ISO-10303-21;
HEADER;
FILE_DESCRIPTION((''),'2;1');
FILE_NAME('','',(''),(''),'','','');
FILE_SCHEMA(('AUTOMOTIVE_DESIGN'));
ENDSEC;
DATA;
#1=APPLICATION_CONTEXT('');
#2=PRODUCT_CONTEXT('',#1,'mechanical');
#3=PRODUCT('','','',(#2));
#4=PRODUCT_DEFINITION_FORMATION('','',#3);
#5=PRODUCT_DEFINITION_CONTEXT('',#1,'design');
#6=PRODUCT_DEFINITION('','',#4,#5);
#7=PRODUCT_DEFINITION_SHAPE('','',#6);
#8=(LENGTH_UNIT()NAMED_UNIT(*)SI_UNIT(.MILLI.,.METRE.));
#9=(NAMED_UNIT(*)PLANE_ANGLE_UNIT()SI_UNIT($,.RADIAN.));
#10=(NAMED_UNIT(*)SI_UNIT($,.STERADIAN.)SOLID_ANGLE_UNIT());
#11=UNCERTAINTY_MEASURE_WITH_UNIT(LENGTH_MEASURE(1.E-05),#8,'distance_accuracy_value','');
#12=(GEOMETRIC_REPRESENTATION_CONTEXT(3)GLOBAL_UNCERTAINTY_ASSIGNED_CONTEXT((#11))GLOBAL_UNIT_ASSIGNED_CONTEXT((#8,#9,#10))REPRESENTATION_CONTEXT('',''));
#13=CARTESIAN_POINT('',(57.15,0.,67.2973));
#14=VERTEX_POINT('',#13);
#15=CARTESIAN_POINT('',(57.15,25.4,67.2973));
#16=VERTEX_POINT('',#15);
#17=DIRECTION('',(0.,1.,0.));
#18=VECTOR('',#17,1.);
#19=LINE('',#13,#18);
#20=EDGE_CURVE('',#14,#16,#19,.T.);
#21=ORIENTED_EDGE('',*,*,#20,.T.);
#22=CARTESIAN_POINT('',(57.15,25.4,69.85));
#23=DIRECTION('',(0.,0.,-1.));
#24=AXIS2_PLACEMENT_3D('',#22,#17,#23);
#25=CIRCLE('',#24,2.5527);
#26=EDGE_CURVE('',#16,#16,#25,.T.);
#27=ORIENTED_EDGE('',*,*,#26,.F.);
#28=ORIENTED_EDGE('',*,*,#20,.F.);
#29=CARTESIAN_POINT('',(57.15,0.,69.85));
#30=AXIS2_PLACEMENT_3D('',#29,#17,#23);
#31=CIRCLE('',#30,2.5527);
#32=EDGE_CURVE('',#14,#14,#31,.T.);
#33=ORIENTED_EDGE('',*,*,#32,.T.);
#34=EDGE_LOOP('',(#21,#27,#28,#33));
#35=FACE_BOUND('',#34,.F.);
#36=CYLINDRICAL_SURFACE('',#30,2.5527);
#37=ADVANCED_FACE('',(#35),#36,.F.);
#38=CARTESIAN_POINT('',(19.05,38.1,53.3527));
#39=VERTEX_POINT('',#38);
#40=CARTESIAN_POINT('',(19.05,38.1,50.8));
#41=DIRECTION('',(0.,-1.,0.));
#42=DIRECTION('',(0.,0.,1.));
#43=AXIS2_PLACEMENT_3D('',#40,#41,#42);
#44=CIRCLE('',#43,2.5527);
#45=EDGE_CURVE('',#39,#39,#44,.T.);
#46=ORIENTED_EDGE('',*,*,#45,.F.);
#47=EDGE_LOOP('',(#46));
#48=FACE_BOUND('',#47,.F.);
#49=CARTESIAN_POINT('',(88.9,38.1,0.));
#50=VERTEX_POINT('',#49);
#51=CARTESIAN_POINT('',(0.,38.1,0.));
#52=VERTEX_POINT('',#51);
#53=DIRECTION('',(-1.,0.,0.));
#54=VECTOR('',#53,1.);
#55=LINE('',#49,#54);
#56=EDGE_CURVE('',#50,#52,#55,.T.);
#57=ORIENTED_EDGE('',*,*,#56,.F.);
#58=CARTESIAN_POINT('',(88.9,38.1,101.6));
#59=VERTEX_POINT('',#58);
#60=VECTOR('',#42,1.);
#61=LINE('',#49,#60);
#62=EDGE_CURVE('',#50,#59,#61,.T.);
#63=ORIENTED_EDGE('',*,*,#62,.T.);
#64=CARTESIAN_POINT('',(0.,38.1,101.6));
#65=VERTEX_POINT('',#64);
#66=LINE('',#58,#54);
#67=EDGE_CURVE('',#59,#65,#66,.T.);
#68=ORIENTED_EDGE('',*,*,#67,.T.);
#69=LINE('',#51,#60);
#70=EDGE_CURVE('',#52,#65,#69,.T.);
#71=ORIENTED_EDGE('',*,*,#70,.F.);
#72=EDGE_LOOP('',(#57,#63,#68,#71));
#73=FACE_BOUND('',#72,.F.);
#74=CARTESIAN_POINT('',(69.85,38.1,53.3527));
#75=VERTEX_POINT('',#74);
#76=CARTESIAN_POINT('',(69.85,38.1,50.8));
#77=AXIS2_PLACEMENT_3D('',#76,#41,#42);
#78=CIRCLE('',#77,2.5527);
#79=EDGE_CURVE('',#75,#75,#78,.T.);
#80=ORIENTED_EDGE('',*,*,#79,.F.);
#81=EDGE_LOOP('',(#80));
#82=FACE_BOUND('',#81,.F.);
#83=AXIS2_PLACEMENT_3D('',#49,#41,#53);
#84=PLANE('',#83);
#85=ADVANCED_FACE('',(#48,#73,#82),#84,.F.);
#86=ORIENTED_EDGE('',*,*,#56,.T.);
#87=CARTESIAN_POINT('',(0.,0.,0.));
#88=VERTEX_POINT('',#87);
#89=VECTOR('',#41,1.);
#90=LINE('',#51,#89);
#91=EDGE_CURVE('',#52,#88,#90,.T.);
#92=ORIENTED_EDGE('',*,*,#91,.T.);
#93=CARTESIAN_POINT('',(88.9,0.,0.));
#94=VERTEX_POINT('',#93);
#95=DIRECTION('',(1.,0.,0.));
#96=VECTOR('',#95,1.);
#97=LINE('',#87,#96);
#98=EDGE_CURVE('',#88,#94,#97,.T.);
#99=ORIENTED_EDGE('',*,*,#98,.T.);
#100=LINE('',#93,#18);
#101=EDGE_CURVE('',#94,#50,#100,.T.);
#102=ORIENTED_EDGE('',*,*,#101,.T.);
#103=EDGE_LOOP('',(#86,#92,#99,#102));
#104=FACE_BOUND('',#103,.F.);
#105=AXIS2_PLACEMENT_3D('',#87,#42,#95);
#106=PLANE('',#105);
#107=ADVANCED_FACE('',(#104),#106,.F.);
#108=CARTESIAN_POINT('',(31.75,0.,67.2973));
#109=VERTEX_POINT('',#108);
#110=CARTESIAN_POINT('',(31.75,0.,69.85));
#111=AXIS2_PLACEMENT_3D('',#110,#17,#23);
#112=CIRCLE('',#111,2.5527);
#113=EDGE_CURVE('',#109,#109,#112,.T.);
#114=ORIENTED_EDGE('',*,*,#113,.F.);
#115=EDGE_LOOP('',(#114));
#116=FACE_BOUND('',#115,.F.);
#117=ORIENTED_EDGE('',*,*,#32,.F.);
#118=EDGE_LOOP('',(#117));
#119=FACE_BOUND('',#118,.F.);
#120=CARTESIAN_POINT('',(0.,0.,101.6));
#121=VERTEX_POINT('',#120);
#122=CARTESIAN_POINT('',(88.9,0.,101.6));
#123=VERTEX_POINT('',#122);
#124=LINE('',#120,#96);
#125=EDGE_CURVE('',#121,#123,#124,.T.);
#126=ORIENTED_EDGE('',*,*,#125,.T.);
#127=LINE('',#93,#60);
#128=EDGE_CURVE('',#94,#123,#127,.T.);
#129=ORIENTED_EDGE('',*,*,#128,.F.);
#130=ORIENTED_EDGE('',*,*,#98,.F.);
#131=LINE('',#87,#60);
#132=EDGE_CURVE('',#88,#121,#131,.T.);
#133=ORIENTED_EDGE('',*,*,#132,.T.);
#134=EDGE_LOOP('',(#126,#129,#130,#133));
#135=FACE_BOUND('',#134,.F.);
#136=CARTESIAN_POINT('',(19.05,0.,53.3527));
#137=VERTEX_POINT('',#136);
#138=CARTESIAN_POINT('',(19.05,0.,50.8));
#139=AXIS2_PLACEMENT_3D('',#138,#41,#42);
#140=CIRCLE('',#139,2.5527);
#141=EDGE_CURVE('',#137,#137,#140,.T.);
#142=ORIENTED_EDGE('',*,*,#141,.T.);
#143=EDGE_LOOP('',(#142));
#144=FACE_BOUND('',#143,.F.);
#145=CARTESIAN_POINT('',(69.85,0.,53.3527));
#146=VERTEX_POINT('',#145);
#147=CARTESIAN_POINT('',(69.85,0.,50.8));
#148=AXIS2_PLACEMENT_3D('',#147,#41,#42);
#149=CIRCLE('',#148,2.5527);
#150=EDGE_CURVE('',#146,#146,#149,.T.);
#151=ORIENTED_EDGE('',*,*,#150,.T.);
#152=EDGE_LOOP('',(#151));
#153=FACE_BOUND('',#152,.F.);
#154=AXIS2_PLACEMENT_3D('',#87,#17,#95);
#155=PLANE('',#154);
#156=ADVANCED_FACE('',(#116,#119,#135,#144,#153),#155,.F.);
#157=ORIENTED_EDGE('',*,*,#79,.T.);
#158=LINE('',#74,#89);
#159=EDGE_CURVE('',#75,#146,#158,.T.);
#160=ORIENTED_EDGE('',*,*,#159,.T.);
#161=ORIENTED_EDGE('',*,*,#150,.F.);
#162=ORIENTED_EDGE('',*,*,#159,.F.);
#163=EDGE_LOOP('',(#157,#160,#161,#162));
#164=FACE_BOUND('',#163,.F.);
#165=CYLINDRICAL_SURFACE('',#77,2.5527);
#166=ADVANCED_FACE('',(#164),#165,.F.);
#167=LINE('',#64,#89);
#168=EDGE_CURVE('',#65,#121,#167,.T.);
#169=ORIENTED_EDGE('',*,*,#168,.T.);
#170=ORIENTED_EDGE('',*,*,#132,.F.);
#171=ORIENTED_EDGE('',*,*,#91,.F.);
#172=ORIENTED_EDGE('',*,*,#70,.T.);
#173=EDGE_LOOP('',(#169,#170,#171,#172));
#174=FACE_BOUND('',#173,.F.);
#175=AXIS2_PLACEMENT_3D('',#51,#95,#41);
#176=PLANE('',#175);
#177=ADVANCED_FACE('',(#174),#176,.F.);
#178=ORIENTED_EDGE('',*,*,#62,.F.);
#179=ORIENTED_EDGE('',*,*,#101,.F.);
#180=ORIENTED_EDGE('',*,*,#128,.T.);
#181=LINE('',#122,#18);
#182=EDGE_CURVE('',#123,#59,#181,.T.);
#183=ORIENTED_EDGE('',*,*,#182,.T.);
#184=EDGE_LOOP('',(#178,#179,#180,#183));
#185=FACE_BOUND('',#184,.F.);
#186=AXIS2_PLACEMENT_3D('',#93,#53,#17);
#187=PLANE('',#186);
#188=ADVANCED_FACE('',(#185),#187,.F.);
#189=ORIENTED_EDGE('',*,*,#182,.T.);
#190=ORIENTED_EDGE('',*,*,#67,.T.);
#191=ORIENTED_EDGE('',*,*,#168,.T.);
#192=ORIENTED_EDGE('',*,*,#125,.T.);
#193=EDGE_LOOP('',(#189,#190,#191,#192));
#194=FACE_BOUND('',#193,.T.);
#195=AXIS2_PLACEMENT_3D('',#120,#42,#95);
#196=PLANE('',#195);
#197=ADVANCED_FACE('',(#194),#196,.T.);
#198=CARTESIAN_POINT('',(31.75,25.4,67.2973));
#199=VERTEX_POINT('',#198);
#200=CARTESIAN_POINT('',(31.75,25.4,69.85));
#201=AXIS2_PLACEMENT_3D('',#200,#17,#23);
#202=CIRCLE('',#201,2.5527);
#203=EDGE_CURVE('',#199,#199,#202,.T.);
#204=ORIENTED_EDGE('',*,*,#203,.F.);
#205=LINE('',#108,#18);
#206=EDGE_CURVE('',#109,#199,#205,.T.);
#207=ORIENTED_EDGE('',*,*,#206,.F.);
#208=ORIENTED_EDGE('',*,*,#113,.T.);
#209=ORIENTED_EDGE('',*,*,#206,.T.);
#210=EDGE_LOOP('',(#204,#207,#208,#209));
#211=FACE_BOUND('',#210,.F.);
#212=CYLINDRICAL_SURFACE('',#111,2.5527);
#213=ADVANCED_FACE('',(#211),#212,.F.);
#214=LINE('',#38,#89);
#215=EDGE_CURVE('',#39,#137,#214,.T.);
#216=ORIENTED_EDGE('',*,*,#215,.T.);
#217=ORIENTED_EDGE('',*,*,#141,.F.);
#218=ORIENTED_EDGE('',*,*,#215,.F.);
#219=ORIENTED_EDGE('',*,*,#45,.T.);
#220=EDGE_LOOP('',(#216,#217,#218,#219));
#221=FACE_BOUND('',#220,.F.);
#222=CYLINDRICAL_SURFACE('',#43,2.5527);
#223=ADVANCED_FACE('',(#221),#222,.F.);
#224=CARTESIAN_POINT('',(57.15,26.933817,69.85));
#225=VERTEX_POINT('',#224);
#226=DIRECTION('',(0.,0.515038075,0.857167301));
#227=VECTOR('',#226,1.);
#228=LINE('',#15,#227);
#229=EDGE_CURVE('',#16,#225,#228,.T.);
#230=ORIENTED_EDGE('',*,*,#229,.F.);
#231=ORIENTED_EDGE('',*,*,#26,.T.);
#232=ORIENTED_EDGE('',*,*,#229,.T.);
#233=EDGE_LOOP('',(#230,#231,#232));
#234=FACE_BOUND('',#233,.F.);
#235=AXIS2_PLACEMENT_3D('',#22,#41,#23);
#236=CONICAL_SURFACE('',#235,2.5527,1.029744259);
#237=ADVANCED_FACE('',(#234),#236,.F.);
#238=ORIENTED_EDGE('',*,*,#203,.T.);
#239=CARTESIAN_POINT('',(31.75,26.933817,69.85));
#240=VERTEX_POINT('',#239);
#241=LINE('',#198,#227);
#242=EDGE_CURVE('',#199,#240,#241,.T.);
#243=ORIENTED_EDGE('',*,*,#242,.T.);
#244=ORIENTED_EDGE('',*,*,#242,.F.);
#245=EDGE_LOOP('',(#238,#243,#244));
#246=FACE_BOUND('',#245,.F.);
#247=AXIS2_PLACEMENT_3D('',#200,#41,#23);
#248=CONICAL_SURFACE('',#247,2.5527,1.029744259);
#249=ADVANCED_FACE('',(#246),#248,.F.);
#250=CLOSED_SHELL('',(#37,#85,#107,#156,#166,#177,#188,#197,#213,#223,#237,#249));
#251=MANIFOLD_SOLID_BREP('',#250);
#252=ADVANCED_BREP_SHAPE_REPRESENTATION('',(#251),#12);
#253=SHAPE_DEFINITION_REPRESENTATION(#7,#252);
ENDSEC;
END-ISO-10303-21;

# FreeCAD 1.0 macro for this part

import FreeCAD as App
import Part
import Sketcher
Q = App.Units.Quantity

doc = App.newDocument("Part")
body = doc.addObject("PartDesign::Body", "Body")

# Sketch on XY plane
sketch1 = body.newObject("Sketcher::SketchObject", "Sketch")
sketch1.AttachmentSupport = (doc.getObject("XY_Plane"), [""])
sketch1.MapMode = "FlatFace"
sketch1.addGeometry(Part.LineSegment(App.Vector(0, 38, 0), App.Vector(0, 0, 0)), False)
sketch1.addGeometry(Part.LineSegment(App.Vector(0, 0, 0), App.Vector(89, 0, 0)), False)
sketch1.addGeometry(Part.LineSegment(App.Vector(89, 0, 0), App.Vector(89, 38, 0)), False)
sketch1.addGeometry(Part.LineSegment(App.Vector(89, 38, 0), App.Vector(0, 38, 0)), False)
sketch1.addConstraint(Sketcher.Constraint("Coincident", 0, 2, 1, 1))
sketch1.addConstraint(Sketcher.Constraint("Coincident", 1, 2, 2, 1))
sketch1.addConstraint(Sketcher.Constraint("Coincident", 2, 2, 3, 1))
sketch1.addConstraint(Sketcher.Constraint("Coincident", 3, 2, 0, 1))
sketch1.addConstraint(Sketcher.Constraint("Vertical", 0))
sketch1.addConstraint(Sketcher.Constraint("Horizontal", 1))
sketch1.addConstraint(Sketcher.Constraint("Vertical", 2))
sketch1.addConstraint(Sketcher.Constraint("Horizontal", 3))
sketch1.addConstraint(Sketcher.Constraint("Coincident", 0, 2, -1, 1))
sketch1.addConstraint(Sketcher.Constraint("DistanceX", 1, 1, 1, 2, Q("3.5 in")))
sketch1.addConstraint(Sketcher.Constraint("DistanceY", 0, 2, 0, 1, Q("1.5 in")))
pad1 = body.newObject("PartDesign::Pad", "Pad")
pad1.Profile = sketch1
pad1.Length = Q("4 in")

# Sketch on XZ plane
sketch2 = body.newObject("Sketcher::SketchObject", "Sketch001")
sketch2.AttachmentSupport = (doc.getObject("XZ_Plane"), [""])
sketch2.MapMode = "FlatFace"
sketch2.AttachmentOffset = App.Placement(App.Vector(0, 0, -1.5 * 25.4), App.Rotation())
sketch2.addGeometry(Part.Circle(App.Vector(19.1, 50.8, 0), App.Vector(0, 0, 1), 2.6), False)
sketch2.addGeometry(Part.Circle(App.Vector(69.8, 50.8, 0), App.Vector(0, 0, 1), 2.6), False)
sketch2.addConstraint(Sketcher.Constraint("Equal", 0, 1))
sketch2.addConstraint(Sketcher.Constraint("Horizontal", 0, 3, 1, 3))
sketch2.addConstraint(Sketcher.Constraint("Diameter", 0, Q("0.201 in")))
sketch2.addConstraint(Sketcher.Constraint("DistanceY", -1, 1, 0, 3, Q("2 in")))
sketch2.addConstraint(Sketcher.Constraint("DistanceX", 0, 3, 1, 3, Q("2 in")))
sketch2.addConstraint(Sketcher.Constraint("DistanceX", -1, 1, 0, 3, Q("0.75 in")))
doc.recompute()
hole = body.newObject("PartDesign::Hole", "Hole")
hole.Profile = sketch2
hole.ThreadType = "None"
hole.Diameter = Q("0.201 in")
hole.DepthType = "ThroughAll"
hole.Reversed = True

# Sketch on XZ plane
sketch3 = body.newObject("Sketcher::SketchObject", "Sketch002")
sketch3.AttachmentSupport = (doc.getObject("XZ_Plane"), [""])
sketch3.MapMode = "FlatFace"
sketch3.addGeometry(Part.Circle(App.Vector(31.8, 69.8, 0), App.Vector(0, 0, 1), 2.6), False)
sketch3.addGeometry(Part.Circle(App.Vector(57.1, 69.8, 0), App.Vector(0, 0, 1), 2.6), False)
sketch3.addConstraint(Sketcher.Constraint("Equal", 0, 1))
sketch3.addConstraint(Sketcher.Constraint("Horizontal", 0, 3, 1, 3))
sketch3.addConstraint(Sketcher.Constraint("Diameter", 0, Q("0.201 in")))
sketch3.addConstraint(Sketcher.Constraint("DistanceX", 0, 3, 1, 3, Q("1 in")))
sketch3.addConstraint(Sketcher.Constraint("DistanceX", -1, 1, 0, 3, Q("1.25 in")))
sketch3.addConstraint(Sketcher.Constraint("DistanceY", -1, 1, 0, 3, Q("2.75 in")))
doc.recompute()
hole2 = body.newObject("PartDesign::Hole", "Hole001")
hole2.Profile = sketch3
hole2.ThreadType = "None"
hole2.Diameter = Q("0.201 in")
hole2.DepthType = "Dimension"
hole2.Depth = Q("1 in")
hole2.DrillPoint = "Angled"
hole2.DrillPointAngle = 118

doc.recompute()
